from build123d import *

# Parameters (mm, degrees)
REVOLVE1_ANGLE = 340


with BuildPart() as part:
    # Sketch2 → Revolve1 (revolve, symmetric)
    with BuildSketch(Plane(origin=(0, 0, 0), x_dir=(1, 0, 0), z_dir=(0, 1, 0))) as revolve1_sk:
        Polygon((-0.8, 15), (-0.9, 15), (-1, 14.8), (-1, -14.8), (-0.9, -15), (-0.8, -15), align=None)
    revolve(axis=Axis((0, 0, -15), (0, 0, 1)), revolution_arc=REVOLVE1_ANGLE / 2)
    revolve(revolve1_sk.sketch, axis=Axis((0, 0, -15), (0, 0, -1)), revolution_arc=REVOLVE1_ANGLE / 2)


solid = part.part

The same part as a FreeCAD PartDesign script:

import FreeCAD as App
import Part
import Sketcher

V = App.Vector

doc = App.newDocument("Part")
body = doc.addObject("PartDesign::Body", "Body")

sketch1 = body.newObject("Sketcher::SketchObject", "Sketch")
sketch1.AttachmentSupport = (doc.getObject("XZ_Plane"), [""])
sketch1.MapMode = "FlatFace"
sketch1.addGeometry(Part.LineSegment(V(-0.8, -15, 0), V(-0.9, -15, 0)), False)
sketch1.addGeometry(Part.LineSegment(V(-0.9, -15, 0), V(-1, -14.8, 0)), False)
sketch1.addGeometry(Part.LineSegment(V(-1, -14.8, 0), V(-1, 14.8, 0)), False)
sketch1.addGeometry(Part.LineSegment(V(-1, 14.8, 0), V(-0.9, 15, 0)), False)
sketch1.addGeometry(Part.LineSegment(V(-0.9, 15, 0), V(-0.8, 15, 0)), False)
sketch1.addGeometry(Part.LineSegment(V(-0.8, 15, 0), V(-0.8, -15, 0)), False)
sketch1.addConstraint(Sketcher.Constraint("Coincident", 0, 2, 1, 1))
sketch1.addConstraint(Sketcher.Constraint("Coincident", 1, 2, 2, 1))
sketch1.addConstraint(Sketcher.Constraint("Coincident", 2, 2, 3, 1))
sketch1.addConstraint(Sketcher.Constraint("Coincident", 3, 2, 4, 1))
sketch1.addConstraint(Sketcher.Constraint("Coincident", 4, 2, 5, 1))
sketch1.addConstraint(Sketcher.Constraint("Coincident", 5, 2, 0, 1))
sketch1.addConstraint(Sketcher.Constraint("Horizontal", 0))
sketch1.addConstraint(Sketcher.Constraint("Vertical", 2))
sketch1.addConstraint(Sketcher.Constraint("Horizontal", 4))
sketch1.addConstraint(Sketcher.Constraint("Vertical", 5))
sketch1.addConstraint(Sketcher.Constraint("Symmetric", 0, 2, 3, 2, -1))
sketch1.addConstraint(Sketcher.Constraint("Equal", 1, 3))
sketch1.addConstraint(Sketcher.Constraint("DistanceY", 5, 2, 5, 1, 30.0))
sketch1.addConstraint(Sketcher.Constraint("DistanceX", 0, 2, 0, 1, 0.1))
sketch1.addConstraint(Sketcher.Constraint("DistanceY", 2, 1, 2, 2, 29.6))
sketch1.addConstraint(Sketcher.Constraint("DistanceX", 1, 2, -1, 1, 1.0))
sketch1.addConstraint(Sketcher.Constraint("DistanceX", 0, 2, -1, 1, 0.9))
revolution = body.newObject("PartDesign::Revolution", "Revolution")
revolution.Profile = sketch1
revolution.ReferenceAxis = (sketch1, ["V_Axis"])
revolution.Angle = 170

sketch2 = body.newObject("Sketcher::SketchObject", "Sketch001")
sketch2.AttachmentSupport = (doc.getObject("XZ_Plane"), [""])
sketch2.MapMode = "FlatFace"
sketch2.addGeometry(Part.LineSegment(V(-0.8, -15, 0), V(-0.9, -15, 0)), False)
sketch2.addGeometry(Part.LineSegment(V(-0.9, -15, 0), V(-1, -14.8, 0)), False)
sketch2.addGeometry(Part.LineSegment(V(-1, -14.8, 0), V(-1, 14.8, 0)), False)
sketch2.addGeometry(Part.LineSegment(V(-1, 14.8, 0), V(-0.9, 15, 0)), False)
sketch2.addGeometry(Part.LineSegment(V(-0.9, 15, 0), V(-0.8, 15, 0)), False)
sketch2.addGeometry(Part.LineSegment(V(-0.8, 15, 0), V(-0.8, -15, 0)), False)
sketch2.addConstraint(Sketcher.Constraint("Coincident", 0, 2, 1, 1))
sketch2.addConstraint(Sketcher.Constraint("Coincident", 1, 2, 2, 1))
sketch2.addConstraint(Sketcher.Constraint("Coincident", 2, 2, 3, 1))
sketch2.addConstraint(Sketcher.Constraint("Coincident", 3, 2, 4, 1))
sketch2.addConstraint(Sketcher.Constraint("Coincident", 4, 2, 5, 1))
sketch2.addConstraint(Sketcher.Constraint("Coincident", 5, 2, 0, 1))
sketch2.addConstraint(Sketcher.Constraint("Horizontal", 0))
sketch2.addConstraint(Sketcher.Constraint("Vertical", 2))
sketch2.addConstraint(Sketcher.Constraint("Horizontal", 4))
sketch2.addConstraint(Sketcher.Constraint("Vertical", 5))
sketch2.addConstraint(Sketcher.Constraint("Symmetric", 0, 2, 3, 2, -1))
sketch2.addConstraint(Sketcher.Constraint("Equal", 1, 3))
sketch2.addConstraint(Sketcher.Constraint("DistanceY", 5, 2, 5, 1, 30.0))
sketch2.addConstraint(Sketcher.Constraint("DistanceX", 0, 2, 0, 1, 0.1))
sketch2.addConstraint(Sketcher.Constraint("DistanceY", 2, 1, 2, 2, 29.6))
sketch2.addConstraint(Sketcher.Constraint("DistanceX", 1, 2, -1, 1, 1.0))
sketch2.addConstraint(Sketcher.Constraint("DistanceX", 0, 2, -1, 1, 0.9))
revolution2 = body.newObject("PartDesign::Revolution", "Revolution001")
revolution2.Profile = sketch2
revolution2.ReferenceAxis = (sketch2, ["V_Axis"])
revolution2.Angle = 170
revolution2.Reversed = True

doc.recompute()
